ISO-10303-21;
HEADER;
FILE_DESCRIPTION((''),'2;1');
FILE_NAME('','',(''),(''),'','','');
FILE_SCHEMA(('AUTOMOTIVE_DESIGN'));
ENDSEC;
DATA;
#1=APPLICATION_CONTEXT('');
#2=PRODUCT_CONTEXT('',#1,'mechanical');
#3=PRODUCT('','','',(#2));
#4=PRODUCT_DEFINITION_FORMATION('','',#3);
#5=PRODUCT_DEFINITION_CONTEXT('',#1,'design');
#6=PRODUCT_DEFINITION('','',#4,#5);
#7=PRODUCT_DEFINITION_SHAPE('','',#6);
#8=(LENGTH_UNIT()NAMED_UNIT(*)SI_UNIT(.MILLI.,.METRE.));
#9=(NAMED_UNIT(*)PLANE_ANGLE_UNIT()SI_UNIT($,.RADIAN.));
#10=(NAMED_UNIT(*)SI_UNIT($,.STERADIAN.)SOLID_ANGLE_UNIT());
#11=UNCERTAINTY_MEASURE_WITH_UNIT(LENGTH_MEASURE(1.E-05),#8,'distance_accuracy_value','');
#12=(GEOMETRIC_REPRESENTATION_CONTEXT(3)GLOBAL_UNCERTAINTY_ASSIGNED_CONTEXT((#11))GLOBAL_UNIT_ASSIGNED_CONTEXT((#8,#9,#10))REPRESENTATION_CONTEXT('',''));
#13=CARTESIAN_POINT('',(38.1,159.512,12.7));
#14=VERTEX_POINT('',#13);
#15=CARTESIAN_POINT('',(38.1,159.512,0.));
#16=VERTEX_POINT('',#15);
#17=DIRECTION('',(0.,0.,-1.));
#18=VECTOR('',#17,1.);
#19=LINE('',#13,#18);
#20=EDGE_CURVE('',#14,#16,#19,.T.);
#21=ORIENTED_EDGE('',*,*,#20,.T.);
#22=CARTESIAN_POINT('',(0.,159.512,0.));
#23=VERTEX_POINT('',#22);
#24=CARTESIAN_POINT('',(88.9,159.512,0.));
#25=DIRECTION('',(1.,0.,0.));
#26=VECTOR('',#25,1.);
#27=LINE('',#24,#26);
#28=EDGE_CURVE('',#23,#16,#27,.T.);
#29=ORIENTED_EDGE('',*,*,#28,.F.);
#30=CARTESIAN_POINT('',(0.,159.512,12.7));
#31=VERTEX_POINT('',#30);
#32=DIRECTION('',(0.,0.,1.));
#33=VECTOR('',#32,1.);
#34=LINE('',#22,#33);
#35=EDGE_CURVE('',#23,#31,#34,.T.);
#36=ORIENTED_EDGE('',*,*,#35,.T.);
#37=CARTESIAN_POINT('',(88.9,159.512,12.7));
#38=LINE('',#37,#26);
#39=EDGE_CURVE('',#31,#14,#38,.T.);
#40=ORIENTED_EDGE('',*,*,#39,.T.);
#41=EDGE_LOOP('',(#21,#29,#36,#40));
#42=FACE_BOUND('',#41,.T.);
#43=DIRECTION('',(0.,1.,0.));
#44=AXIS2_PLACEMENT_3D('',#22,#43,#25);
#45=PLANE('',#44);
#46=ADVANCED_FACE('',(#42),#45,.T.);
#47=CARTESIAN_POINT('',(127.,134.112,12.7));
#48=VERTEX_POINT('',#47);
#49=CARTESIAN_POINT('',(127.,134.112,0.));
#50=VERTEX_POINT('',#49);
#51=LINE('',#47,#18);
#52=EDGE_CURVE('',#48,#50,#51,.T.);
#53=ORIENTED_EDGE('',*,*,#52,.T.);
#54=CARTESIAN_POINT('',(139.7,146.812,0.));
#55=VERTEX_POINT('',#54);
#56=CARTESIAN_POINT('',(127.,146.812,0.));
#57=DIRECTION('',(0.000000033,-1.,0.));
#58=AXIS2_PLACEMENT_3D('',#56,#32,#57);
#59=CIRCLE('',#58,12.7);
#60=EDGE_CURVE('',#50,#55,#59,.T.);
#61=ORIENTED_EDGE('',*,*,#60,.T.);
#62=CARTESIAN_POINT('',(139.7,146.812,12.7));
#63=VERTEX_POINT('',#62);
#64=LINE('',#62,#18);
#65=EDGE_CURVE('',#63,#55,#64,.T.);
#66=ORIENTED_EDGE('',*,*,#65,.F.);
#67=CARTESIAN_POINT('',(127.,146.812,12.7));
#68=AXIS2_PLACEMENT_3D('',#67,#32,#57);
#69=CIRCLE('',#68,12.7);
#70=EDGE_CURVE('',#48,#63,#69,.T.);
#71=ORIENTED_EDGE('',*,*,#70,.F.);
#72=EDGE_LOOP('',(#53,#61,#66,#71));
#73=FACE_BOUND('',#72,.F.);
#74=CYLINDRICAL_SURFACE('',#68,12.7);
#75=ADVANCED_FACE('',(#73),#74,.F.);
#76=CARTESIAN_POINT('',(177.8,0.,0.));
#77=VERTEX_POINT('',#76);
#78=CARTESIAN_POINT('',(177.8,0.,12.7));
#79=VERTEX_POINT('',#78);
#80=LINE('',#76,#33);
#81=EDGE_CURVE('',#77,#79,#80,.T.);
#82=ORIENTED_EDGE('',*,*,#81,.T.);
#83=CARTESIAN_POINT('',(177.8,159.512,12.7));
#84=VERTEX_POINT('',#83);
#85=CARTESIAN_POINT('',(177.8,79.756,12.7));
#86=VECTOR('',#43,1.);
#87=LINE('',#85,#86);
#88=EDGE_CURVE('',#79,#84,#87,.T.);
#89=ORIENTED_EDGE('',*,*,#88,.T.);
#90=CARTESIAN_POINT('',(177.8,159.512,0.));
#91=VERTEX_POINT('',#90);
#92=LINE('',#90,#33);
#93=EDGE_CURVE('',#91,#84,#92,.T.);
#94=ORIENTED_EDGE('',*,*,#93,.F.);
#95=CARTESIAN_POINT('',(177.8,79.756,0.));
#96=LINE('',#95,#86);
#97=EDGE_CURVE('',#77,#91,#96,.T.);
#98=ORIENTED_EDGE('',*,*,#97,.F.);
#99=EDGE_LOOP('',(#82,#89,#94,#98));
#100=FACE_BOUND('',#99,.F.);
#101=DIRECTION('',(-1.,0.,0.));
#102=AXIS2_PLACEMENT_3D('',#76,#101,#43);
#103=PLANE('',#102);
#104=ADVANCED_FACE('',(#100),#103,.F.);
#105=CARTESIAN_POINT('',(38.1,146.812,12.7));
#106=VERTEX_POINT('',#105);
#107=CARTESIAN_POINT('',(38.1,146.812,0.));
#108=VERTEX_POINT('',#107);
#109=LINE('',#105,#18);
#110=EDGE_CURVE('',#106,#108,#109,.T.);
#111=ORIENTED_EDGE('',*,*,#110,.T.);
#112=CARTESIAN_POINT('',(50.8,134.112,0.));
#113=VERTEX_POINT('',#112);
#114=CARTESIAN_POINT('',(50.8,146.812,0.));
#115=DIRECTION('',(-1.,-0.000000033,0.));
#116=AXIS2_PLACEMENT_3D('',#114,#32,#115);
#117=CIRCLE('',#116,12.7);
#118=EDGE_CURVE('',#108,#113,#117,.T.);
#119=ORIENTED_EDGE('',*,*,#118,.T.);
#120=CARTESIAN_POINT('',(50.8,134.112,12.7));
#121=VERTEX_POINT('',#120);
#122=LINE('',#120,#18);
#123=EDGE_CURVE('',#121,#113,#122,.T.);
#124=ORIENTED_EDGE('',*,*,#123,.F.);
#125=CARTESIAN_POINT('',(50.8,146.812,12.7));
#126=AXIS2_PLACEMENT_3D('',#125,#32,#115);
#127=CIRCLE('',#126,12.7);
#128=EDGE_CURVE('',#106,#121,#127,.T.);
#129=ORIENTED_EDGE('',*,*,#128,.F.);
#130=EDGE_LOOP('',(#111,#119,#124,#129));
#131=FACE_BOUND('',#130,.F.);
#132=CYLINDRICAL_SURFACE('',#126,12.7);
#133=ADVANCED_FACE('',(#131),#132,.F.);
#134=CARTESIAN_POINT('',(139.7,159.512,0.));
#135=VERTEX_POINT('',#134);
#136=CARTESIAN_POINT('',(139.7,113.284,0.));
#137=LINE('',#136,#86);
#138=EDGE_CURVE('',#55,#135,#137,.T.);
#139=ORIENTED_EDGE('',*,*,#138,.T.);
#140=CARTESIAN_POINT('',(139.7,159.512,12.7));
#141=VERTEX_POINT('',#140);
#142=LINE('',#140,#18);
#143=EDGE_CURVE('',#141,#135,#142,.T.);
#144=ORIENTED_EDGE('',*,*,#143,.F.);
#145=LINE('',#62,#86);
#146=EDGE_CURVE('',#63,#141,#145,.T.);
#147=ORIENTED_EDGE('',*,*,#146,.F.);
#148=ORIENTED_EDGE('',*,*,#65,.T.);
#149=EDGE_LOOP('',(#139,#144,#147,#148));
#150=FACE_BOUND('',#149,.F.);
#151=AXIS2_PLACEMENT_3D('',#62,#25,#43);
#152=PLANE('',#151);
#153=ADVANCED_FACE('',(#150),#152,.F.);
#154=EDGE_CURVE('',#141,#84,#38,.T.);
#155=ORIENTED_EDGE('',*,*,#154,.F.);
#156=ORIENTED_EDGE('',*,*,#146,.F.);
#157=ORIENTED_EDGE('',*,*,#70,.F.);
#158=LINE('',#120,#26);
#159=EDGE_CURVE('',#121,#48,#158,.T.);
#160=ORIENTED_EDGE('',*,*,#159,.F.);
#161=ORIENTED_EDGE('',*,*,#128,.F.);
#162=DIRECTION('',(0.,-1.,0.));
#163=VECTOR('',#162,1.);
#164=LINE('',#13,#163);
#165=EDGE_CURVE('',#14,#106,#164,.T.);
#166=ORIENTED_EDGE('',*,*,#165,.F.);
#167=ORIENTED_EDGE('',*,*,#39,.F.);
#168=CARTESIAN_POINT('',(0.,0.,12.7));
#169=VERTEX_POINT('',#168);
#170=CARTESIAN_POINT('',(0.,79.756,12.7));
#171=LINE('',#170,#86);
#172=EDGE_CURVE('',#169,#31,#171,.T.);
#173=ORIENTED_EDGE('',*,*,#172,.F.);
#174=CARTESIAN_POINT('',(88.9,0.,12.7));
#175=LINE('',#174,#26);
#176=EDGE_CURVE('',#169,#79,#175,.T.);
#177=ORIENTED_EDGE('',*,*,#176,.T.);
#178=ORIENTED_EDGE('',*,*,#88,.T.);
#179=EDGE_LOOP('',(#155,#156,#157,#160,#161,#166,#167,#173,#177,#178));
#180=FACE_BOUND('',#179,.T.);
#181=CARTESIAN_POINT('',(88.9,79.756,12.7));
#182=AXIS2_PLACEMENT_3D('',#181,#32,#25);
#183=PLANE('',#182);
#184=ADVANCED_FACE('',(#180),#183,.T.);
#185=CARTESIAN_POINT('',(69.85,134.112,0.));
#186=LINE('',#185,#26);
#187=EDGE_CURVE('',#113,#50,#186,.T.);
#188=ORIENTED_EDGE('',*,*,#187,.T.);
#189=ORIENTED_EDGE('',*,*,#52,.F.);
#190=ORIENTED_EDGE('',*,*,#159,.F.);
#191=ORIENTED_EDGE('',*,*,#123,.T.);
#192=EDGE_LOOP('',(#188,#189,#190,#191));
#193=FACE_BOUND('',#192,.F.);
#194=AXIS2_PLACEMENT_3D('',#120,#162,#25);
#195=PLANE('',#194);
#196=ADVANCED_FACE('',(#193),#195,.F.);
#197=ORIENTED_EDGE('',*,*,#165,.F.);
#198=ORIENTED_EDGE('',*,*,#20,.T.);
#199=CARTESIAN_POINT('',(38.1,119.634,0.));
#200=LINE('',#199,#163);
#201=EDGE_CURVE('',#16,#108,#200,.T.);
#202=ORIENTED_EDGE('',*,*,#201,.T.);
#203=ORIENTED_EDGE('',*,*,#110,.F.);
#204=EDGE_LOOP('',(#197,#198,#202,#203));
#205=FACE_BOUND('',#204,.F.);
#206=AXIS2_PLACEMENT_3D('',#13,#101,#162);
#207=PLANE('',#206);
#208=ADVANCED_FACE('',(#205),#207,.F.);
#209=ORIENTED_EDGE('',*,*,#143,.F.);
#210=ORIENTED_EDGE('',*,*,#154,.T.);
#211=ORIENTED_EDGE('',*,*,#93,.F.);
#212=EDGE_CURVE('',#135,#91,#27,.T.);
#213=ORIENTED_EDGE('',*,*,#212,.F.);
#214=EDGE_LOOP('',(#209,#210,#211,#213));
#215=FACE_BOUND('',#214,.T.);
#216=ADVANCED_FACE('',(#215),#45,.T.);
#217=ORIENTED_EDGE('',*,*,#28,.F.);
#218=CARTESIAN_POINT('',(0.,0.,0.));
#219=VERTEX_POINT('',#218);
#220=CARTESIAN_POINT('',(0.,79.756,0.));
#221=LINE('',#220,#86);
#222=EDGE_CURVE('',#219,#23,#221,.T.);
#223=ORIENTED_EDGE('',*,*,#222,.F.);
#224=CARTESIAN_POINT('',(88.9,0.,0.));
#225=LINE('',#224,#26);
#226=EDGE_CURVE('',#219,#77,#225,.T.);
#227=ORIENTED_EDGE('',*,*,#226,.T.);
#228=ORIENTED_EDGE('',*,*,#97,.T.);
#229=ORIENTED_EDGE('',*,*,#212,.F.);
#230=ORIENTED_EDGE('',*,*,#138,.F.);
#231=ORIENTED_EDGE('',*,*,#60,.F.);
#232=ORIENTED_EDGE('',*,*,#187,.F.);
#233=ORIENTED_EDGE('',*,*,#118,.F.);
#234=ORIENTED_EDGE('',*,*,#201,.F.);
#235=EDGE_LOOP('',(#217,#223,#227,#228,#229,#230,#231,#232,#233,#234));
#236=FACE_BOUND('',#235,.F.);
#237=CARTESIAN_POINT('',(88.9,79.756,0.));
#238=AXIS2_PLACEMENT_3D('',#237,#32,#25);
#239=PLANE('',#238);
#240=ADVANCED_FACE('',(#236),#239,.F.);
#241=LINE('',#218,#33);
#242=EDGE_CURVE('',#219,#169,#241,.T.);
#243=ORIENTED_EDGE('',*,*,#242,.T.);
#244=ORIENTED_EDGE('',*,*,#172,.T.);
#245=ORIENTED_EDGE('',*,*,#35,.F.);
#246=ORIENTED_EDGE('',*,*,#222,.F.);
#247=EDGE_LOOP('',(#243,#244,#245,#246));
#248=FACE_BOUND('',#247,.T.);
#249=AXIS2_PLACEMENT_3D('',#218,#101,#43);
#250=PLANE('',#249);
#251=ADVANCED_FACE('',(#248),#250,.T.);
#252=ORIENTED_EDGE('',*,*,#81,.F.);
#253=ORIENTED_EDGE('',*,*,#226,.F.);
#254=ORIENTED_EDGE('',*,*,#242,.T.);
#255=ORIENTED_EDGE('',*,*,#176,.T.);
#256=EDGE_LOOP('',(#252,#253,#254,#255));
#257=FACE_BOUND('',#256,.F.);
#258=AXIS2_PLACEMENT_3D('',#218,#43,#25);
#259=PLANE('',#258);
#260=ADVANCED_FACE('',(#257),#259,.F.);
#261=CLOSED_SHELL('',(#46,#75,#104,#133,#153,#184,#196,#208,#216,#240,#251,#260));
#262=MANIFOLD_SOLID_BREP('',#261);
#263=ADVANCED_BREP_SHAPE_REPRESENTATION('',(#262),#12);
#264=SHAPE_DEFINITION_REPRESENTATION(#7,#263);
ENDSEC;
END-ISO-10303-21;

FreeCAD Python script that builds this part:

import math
import FreeCAD as App
import Part
import Sketcher

V = App.Vector
Q = App.Units.Quantity

doc = App.newDocument("Part")
body = doc.addObject("PartDesign::Body", "Body")

sketch1 = doc.addObject("Sketcher::SketchObject", "Sketch")
body.addObject(sketch1)
sketch1.AttachmentSupport = (doc.XY_Plane, [""])
sketch1.MapMode = "FlatFace"
sketch1.addGeometry([
    Part.LineSegment(V(0, 160, 0), V(0, 0, 0)),
    Part.LineSegment(V(0, 0, 0), V(178, 0, 0)),
    Part.LineSegment(V(178, 0, 0), V(178, 160, 0)),
    Part.LineSegment(V(178, 160, 0), V(0, 160, 0)),
], False)
sketch1.addConstraint([
    Sketcher.Constraint("Coincident", 0, 2, 1, 1),
    Sketcher.Constraint("Coincident", 1, 2, 2, 1),
    Sketcher.Constraint("Coincident", 2, 2, 3, 1),
    Sketcher.Constraint("Coincident", 3, 2, 0, 1),
    Sketcher.Constraint("Vertical", 0),
    Sketcher.Constraint("Horizontal", 1),
    Sketcher.Constraint("Vertical", 2),
    Sketcher.Constraint("Horizontal", 3),
    Sketcher.Constraint("Coincident", 0, 2, -1, 1),
    Sketcher.Constraint("DistanceX", 1, 1, 1, 2, Q("7 in")),
    Sketcher.Constraint("DistanceY", 0, 2, 0, 1, Q("6.28 in")),
])
pad1 = doc.addObject("PartDesign::Pad", "Pad")
body.addObject(pad1)
pad1.Profile = sketch1
pad1.Length = Q("0.5 in")

sketch2 = doc.addObject("Sketcher::SketchObject", "Sketch001")
body.addObject(sketch2)
sketch2.AttachmentSupport = (doc.XY_Plane, [""])
sketch2.MapMode = "FlatFace"
sketch2.AttachmentOffset = App.Placement(V(0, 0, 0.5 * 25.4), App.Rotation())
sketch2.addGeometry([
    Part.LineSegment(V(140, 160, 0), V(38, 160, 0)),
    Part.LineSegment(V(38, 160, 0), V(38, 147, 0)),
    Part.ArcOfCircle(Part.Circle(V(51, 147, 0), V(0, 0, 1), 13), math.radians(-180), math.radians(-90)),
    Part.LineSegment(V(51, 134, 0), V(127, 134, 0)),
    Part.ArcOfCircle(Part.Circle(V(127, 147, 0), V(0, 0, 1), 13), math.radians(-90), math.radians(0)),
    Part.LineSegment(V(140, 147, 0), V(140, 160, 0)),
], False)
sketch2.addConstraint([
    Sketcher.Constraint("Coincident", 0, 2, 1, 1),
    Sketcher.Constraint("Tangent", 1, 2, 2, 1),
    Sketcher.Constraint("Tangent", 2, 2, 3, 1),
    Sketcher.Constraint("Tangent", 3, 2, 4, 1),
    Sketcher.Constraint("Tangent", 4, 2, 5, 1),
    Sketcher.Constraint("Coincident", 5, 2, 0, 1),
    Sketcher.Constraint("Horizontal", 0),
    Sketcher.Constraint("Vertical", 1),
    Sketcher.Constraint("Horizontal", 3),
    Sketcher.Constraint("Vertical", 5),
    Sketcher.Constraint("Equal", 2, 4),
    Sketcher.Constraint("Radius", 2, Q("0.5 in")),
    Sketcher.Constraint("DistanceX", 0, 2, 0, 1, Q("4 in")),
    Sketcher.Constraint("DistanceY", 1, 2, 1, 1, Q("0.5 in")),
    Sketcher.Constraint("DistanceX", -1, 1, 2, 3, Q("2 in")),
    Sketcher.Constraint("DistanceY", -1, 1, 2, 3, Q("5.78 in")),
])
pocket1 = doc.addObject("PartDesign::Pocket", "Pocket")
body.addObject(pocket1)
pocket1.Profile = sketch2
pocket1.Type = "ThroughAll"

doc.recompute()
